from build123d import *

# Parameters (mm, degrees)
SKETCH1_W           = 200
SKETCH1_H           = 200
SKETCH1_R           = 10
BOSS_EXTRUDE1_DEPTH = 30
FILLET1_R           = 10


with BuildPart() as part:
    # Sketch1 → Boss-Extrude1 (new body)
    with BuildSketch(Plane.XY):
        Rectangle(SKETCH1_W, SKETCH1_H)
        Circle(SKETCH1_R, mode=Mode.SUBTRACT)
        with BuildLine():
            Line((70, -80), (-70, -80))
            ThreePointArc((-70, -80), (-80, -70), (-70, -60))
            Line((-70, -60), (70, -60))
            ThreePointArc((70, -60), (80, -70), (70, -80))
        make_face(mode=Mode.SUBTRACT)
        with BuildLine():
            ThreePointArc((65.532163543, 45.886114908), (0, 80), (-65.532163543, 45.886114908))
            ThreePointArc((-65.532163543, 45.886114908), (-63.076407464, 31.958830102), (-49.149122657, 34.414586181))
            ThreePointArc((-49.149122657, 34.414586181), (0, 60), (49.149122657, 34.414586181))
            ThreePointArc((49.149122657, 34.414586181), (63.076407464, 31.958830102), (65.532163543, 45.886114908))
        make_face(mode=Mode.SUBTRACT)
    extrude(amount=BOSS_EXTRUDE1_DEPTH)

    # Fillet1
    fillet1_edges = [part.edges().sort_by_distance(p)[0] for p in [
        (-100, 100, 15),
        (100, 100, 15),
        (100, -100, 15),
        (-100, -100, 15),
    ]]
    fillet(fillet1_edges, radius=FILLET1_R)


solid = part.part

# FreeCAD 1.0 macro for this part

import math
import FreeCAD as App
import Part
import Sketcher


def edges_at(feature, points):
    """Names of the edges that pass closest to the given points."""
    edges = feature.Shape.Edges
    near = lambda p: min(range(len(edges)), key=lambda i: edges[i].distToShape(Part.Vertex(*p))[0])
    return sorted({f"Edge{near(p) + 1}" for p in points})


def add_polygon(sketch, points):
    """Adds a closed chain of lines whose ends are joined by coincident constraints."""
    first, n = sketch.GeometryCount, len(points)
    for a, b in zip(points, points[1:] + points[:1]):
        sketch.addGeometry(Part.LineSegment(App.Vector(*a, 0), App.Vector(*b, 0)), False)
    for i in range(n):
        sketch.addConstraint(Sketcher.Constraint("Coincident", first + i, 2, first + (i + 1) % n, 1))

doc = App.newDocument("Part")
body = doc.addObject("PartDesign::Body", "Body")

# Sketch on XY plane
sketch1 = body.newObject("Sketcher::SketchObject", "Sketch")
sketch1.AttachmentSupport = (doc.getObject("XY_Plane"), [""])
sketch1.MapMode = "FlatFace"
add_polygon(sketch1, [(-100, 100), (-100, -100), (100, -100), (100, 100)])  # lines 0-3
sketch1.addGeometry(Part.ArcOfCircle(Part.Circle(App.Vector(70, -70, 0), App.Vector(0, 0, 1), 10), math.radians(-90), math.radians(90)), False)  # 4
sketch1.addGeometry(Part.LineSegment(App.Vector(70, -80, 0), App.Vector(-70, -80, 0)), False)  # 5
sketch1.addGeometry(Part.ArcOfCircle(Part.Circle(App.Vector(-70, -70, 0), App.Vector(0, 0, 1), 10), math.radians(90), math.radians(270)), False)  # 6
sketch1.addGeometry(Part.LineSegment(App.Vector(-70, -60, 0), App.Vector(70, -60, 0)), False)  # 7
sketch1.addGeometry(Part.Circle(App.Vector(0, 0, 0), App.Vector(0, 0, 1), 10), False)  # 8
sketch1.addGeometry(Part.ArcOfCircle(Part.Circle(App.Vector(0, 0, 0), App.Vector(0, 0, 1), 80), math.radians(35), math.radians(145)), False)  # 9
sketch1.addGeometry(Part.ArcOfCircle(Part.Circle(App.Vector(57, 40, 0), App.Vector(0, 0, 1), 10), math.radians(-145), math.radians(35)), False)  # 10
sketch1.addGeometry(Part.ArcOfCircle(Part.Circle(App.Vector(0, 0, 0), App.Vector(0, 0, 1), 60), math.radians(35), math.radians(145)), False)  # 11
sketch1.addGeometry(Part.ArcOfCircle(Part.Circle(App.Vector(-57, 40, 0), App.Vector(0, 0, 1), 10), math.radians(145), math.radians(325)), False)  # 12
sketch1.addConstraint([
    Sketcher.Constraint("Tangent", 4, 1, 5, 1),
    Sketcher.Constraint("Tangent", 5, 2, 6, 2),
    Sketcher.Constraint("Tangent", 6, 1, 7, 1),
    Sketcher.Constraint("Tangent", 7, 2, 4, 2),
    Sketcher.Constraint("Tangent", 9, 1, 10, 2),
    Sketcher.Constraint("Tangent", 10, 1, 11, 1),
    Sketcher.Constraint("Tangent", 11, 2, 12, 2),
    Sketcher.Constraint("Tangent", 12, 1, 9, 2),
    Sketcher.Constraint("Vertical", 0),
    Sketcher.Constraint("Horizontal", 1),
    Sketcher.Constraint("Vertical", 2),
    Sketcher.Constraint("Horizontal", 3),
    Sketcher.Constraint("Horizontal", 5),
    Sketcher.Constraint("Horizontal", 7),
    Sketcher.Constraint("Coincident", 8, 3, -1, 1),
    Sketcher.Constraint("Coincident", 9, 3, -1, 1),
    Sketcher.Constraint("Coincident", 11, 3, -1, 1),
    Sketcher.Constraint("Equal", 6, 8),
    Sketcher.Constraint("Equal", 8, 10),
    Sketcher.Constraint("Symmetric", 0, 2, 2, 2, -1, 1),
    Sketcher.Constraint("Horizontal", 10, 3, 12, 3),
    Sketcher.Constraint("Equal", 3, 0),
    Sketcher.Constraint("Diameter", 8, 20.0),
    Sketcher.Constraint("Radius", 9, 80.0),
    Sketcher.Constraint("DistanceX", 1, 1, 1, 2, 200.0),
    Sketcher.Constraint("DistanceX", 5, 2, 5, 1, 140.0),
    Sketcher.Constraint("DistanceX", -1, 1, 4, 3, 70.0),
    Sketcher.Constraint("DistanceY", 4, 3, -1, 1, 70.0),
    Sketcher.Constraint("DistanceY", -1, 1, 10, 3, 40.150351),
])
pad1 = body.newObject("PartDesign::Pad", "Pad")
pad1.Profile = sketch1
pad1.Length = 30
doc.recompute()

fillet = body.newObject("PartDesign::Fillet", "Fillet")
fillet.Base = (pad1, edges_at(pad1, [
    (-100, 100, 15),
    (100, 100, 15),
    (100, -100, 15),
    (-100, -100, 15),
]))
fillet.Radius = 10

doc.recompute()
